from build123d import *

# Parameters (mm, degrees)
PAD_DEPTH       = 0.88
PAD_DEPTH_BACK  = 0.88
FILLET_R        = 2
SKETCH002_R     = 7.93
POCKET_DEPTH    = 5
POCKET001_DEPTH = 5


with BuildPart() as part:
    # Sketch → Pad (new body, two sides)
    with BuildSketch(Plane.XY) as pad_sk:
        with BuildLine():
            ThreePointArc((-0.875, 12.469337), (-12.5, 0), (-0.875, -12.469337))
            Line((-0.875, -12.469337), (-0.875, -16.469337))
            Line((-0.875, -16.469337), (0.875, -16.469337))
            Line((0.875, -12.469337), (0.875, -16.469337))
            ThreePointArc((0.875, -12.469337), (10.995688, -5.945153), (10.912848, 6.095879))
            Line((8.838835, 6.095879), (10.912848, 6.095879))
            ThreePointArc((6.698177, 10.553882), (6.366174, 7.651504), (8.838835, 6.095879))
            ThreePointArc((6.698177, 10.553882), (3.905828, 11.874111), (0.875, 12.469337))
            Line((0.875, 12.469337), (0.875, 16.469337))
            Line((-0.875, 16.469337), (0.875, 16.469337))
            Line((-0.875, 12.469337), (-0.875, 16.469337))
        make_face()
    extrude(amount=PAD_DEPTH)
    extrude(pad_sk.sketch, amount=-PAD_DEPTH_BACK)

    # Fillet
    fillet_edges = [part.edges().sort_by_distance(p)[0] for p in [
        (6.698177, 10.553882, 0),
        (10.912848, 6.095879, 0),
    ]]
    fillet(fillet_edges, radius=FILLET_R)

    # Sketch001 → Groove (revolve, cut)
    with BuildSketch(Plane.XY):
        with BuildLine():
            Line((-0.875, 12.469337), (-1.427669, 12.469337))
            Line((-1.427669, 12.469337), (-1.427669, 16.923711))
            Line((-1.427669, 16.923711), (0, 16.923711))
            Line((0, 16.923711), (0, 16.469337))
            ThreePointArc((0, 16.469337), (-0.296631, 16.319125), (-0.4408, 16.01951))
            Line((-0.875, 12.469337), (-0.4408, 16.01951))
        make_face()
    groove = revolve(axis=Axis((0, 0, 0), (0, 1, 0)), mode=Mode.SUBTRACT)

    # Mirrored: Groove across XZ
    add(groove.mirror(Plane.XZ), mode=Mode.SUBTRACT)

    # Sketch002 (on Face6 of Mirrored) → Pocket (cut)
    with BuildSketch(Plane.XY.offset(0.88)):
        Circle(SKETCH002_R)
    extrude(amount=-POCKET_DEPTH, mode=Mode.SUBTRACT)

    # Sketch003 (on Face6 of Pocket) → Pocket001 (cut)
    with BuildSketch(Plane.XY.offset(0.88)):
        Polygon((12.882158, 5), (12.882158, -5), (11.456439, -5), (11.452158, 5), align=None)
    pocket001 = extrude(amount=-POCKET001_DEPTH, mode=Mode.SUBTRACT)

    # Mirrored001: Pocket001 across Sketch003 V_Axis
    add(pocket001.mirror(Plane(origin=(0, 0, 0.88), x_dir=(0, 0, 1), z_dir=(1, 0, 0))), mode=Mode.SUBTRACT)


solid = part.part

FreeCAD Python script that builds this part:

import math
import FreeCAD as App
import Part
import Sketcher
from FreeCAD import Vector
Q = App.Units.Quantity


def edges_at(feature, points):
    """Names of the edges that pass closest to the given points."""
    edges = feature.Shape.Edges
    near = lambda p: min(range(len(edges)), key=lambda i: edges[i].distToShape(Part.Vertex(*p))[0])
    return sorted({f"Edge{near(p) + 1}" for p in points})


def add_polygon(sketch, points):
    """Adds a closed chain of lines whose ends are joined by coincident constraints."""
    first, n = sketch.GeometryCount, len(points)
    for a, b in zip(points, points[1:] + points[:1]):
        sketch.addGeometry(Part.LineSegment(App.Vector(*a, 0), App.Vector(*b, 0)), False)
    for i in range(n):
        sketch.addConstraint(Sketcher.Constraint("Coincident", first + i, 2, first + (i + 1) % n, 1))

doc = App.newDocument("Part")
body = doc.addObject("PartDesign::Body", "Body")

# Sketch on XY plane
sketch1 = body.newObject("Sketcher::SketchObject", "Sketch")
sketch1.AttachmentSupport = (doc.getObject("XY_Plane"), [""])
sketch1.MapMode = "FlatFace"
sketch1.addGeometry([
    Part.ArcOfCircle(Part.Circle(Vector(0, 0, 0), Vector(0, 0, 1), 12.5), math.radians(94), math.radians(266)),  # 0
    Part.LineSegment(Vector(-0.9, -12.5, 0), Vector(-0.9, -16.5, 0)),  # 1
    Part.LineSegment(Vector(-0.9, -16.5, 0), Vector(0.9, -16.5, 0)),  # 2
    Part.LineSegment(Vector(0.9, -16.5, 0), Vector(0.9, -12.5, 0)),  # 3
    Part.ArcOfCircle(Part.Circle(Vector(0, 0, 0), Vector(0, 0, 1), 12.5), math.radians(-86), math.radians(29)),  # 4
    Part.LineSegment(Vector(10.9, 6.1, 0), Vector(8.8, 6.1, 0)),  # 5
    Part.ArcOfCircle(Part.Circle(Vector(8.8, 8.8, 0), Vector(0, 0, 1), 2.7), math.radians(141), math.radians(270)),  # 6
    Part.ArcOfCircle(Part.Circle(Vector(0, 0, 0), Vector(0, 0, 1), 12.5), math.radians(58), math.radians(86)),  # 7
    Part.LineSegment(Vector(0.9, 12.5, 0), Vector(0.9, 16.5, 0)),  # 8
    Part.LineSegment(Vector(0.9, 16.5, 0), Vector(-0.9, 16.5, 0)),  # 9
    Part.LineSegment(Vector(-0.9, 16.5, 0), Vector(-0.9, 12.5, 0)),  # 10
], False)
sketch1.addConstraint([
    Sketcher.Constraint("Coincident", 0, 2, 1, 1),
    Sketcher.Constraint("Coincident", 1, 2, 2, 1),
    Sketcher.Constraint("Coincident", 2, 2, 3, 1),
    Sketcher.Constraint("Coincident", 3, 2, 4, 1),
    Sketcher.Constraint("Coincident", 4, 2, 5, 1),
    Sketcher.Constraint("Tangent", 5, 2, 6, 2),
    Sketcher.Constraint("Coincident", 6, 1, 7, 1),
    Sketcher.Constraint("Coincident", 7, 2, 8, 1),
    Sketcher.Constraint("Coincident", 8, 2, 9, 1),
    Sketcher.Constraint("Coincident", 9, 2, 10, 1),
    Sketcher.Constraint("Coincident", 10, 2, 0, 1),
    Sketcher.Constraint("Vertical", 1),
    Sketcher.Constraint("Horizontal", 2),
    Sketcher.Constraint("Vertical", 3),
    Sketcher.Constraint("Horizontal", 5),
    Sketcher.Constraint("Vertical", 8),
    Sketcher.Constraint("Horizontal", 9),
    Sketcher.Constraint("Vertical", 10),
    Sketcher.Constraint("Coincident", 0, 3, -1, 1),
    Sketcher.Constraint("Coincident", 4, 3, -1, 1),
    Sketcher.Constraint("Equal", 0, 4),
    Sketcher.Constraint("Symmetric", 0, 2, 7, 2, -1, 1),
    Sketcher.Constraint("Symmetric", 2, 2, 9, 2, -1, 1),
    Sketcher.Constraint("Horizontal", 0, 2, 3, 2),
    Sketcher.Constraint("Radius", 0, Q("12.5 mm")),
    Sketcher.Constraint("DistanceY", 1, 2, 1, 1, Q("4 mm")),
    Sketcher.Constraint("DistanceX", 2, 1, 2, 2, Q("1.75 mm")),
    Sketcher.Constraint("Radius", 7, Q("12.499988 mm")),
    Sketcher.Constraint("Radius", 6, Q("2.742955 mm")),
    Sketcher.Constraint("DistanceX", 5, 2, 5, 1, Q("2.074013 mm")),
    Sketcher.Constraint("DistanceX", -1, 1, 4, 2, Q("10.912848 mm")),
    Sketcher.Constraint("DistanceY", -1, 1, 6, 1, Q("10.553882 mm")),
])
pad1 = body.newObject("PartDesign::Pad", "Pad")
pad1.Profile = sketch1
pad1.Type = "TwoLengths"
pad1.Length = 0.88
pad1.Length2 = 0.88
doc.recompute()

fillet = body.newObject("PartDesign::Fillet", "Fillet")
fillet.Base = (pad1, edges_at(pad1, [(6.698, 10.554, 0), (10.913, 6.096, 0)]))
fillet.Radius = 2

# Sketch on XY plane
sketch2 = body.newObject("Sketcher::SketchObject", "Sketch001")
sketch2.AttachmentSupport = (doc.getObject("XY_Plane"), [""])
sketch2.MapMode = "FlatFace"
sketch2.addGeometry([
    Part.LineSegment(Vector(-1.43, 12.47, 0), Vector(-0.88, 12.47, 0)),  # 0
    Part.LineSegment(Vector(-0.88, 12.47, 0), Vector(-0.44, 16.02, 0)),  # 1
    Part.ArcOfCircle(Part.Circle(Vector(0.07, 15.96, 0), Vector(0, 0, 1), 0.52), math.radians(98), math.radians(173)),  # 2
    Part.LineSegment(Vector(0, 16.47, 0), Vector(0, 16.92, 0)),  # 3
    Part.LineSegment(Vector(0, 16.92, 0), Vector(-1.43, 16.92, 0)),  # 4
    Part.LineSegment(Vector(-1.43, 16.92, 0), Vector(-1.43, 12.47, 0)),  # 5
], False)
sketch2.addConstraint([
    Sketcher.Constraint("Coincident", 0, 2, 1, 1),
    Sketcher.Constraint("Coincident", 1, 2, 2, 2),
    Sketcher.Constraint("Coincident", 2, 1, 3, 1),
    Sketcher.Constraint("Coincident", 3, 2, 4, 1),
    Sketcher.Constraint("Coincident", 4, 2, 5, 1),
    Sketcher.Constraint("Coincident", 5, 2, 0, 1),
    Sketcher.Constraint("Horizontal", 0),
    Sketcher.Constraint("Vertical", 3),
    Sketcher.Constraint("Horizontal", 4),
    Sketcher.Constraint("Vertical", 5),
    Sketcher.Constraint("PointOnObject", 2, 1, -2),
    Sketcher.Constraint("DistanceY", 0, 2, 2, 1, Q("4 mm")),
    Sketcher.Constraint("Radius", 2, Q("0.517909 mm")),
    Sketcher.Constraint("DistanceX", 0, 2, -1, 1, Q("0.875 mm")),
    Sketcher.Constraint("DistanceX", 0, 1, 0, 2, Q("0.552669 mm")),
    Sketcher.Constraint("DistanceX", 1, 2, -1, 1, Q("0.4408 mm")),
    Sketcher.Constraint("DistanceY", 0, 2, 2, 3, Q("3.487301 mm")),
    Sketcher.Constraint("DistanceY", 1, 2, 3, 2, Q("0.904201 mm")),
    Sketcher.Constraint("DistanceY", -1, 1, 2, 3, Q("15.956638 mm")),
])
groove = body.newObject("PartDesign::Groove", "Groove")
groove.Profile = sketch2
groove.ReferenceAxis = (sketch2, ["V_Axis"])
groove.Angle = 360
doc.recompute()

mirrored = body.newObject("PartDesign::Mirrored", "Mirrored")
mirrored.Originals = [groove]
mirrored.MirrorPlane = (doc.getObject("XZ_Plane"), [""])
body.Tip = mirrored

# Sketch on XY plane
sketch3 = body.newObject("Sketcher::SketchObject", "Sketch002")
sketch3.AttachmentSupport = (doc.getObject("XY_Plane"), [""])
sketch3.MapMode = "FlatFace"
sketch3.AttachmentOffset = App.Placement(Vector(0, 0, 0.88), App.Rotation())
sketch3.addGeometry(Part.Circle(Vector(0, 0, 0), Vector(0, 0, 1), 8), False)
sketch3.addConstraint([
    Sketcher.Constraint("Coincident", 0, 3, -1, 1),
    Sketcher.Constraint("Diameter", 0, Q("15.86 mm")),
])
pocket1 = body.newObject("PartDesign::Pocket", "Pocket")
pocket1.Profile = sketch3
pocket1.Length = 5

# Sketch on XY plane
sketch4 = body.newObject("Sketcher::SketchObject", "Sketch003")
sketch4.AttachmentSupport = (doc.getObject("XY_Plane"), [""])
sketch4.MapMode = "FlatFace"
sketch4.AttachmentOffset = App.Placement(Vector(0, 0, 0.88), App.Rotation())
add_polygon(sketch4, [(12.9, -5), (12.9, 5), (11.5, 5), (11.5, -5)])  # lines 0-3
sketch4.addConstraint([
    Sketcher.Constraint("Vertical", 0),
    Sketcher.Constraint("Horizontal", 1),
    Sketcher.Constraint("Horizontal", 3),
    Sketcher.Constraint("DistanceY", 0, 1, 0, 2, Q("10 mm")),
    Sketcher.Constraint("DistanceY", -1, 1, 0, 2, Q("5 mm")),
    Sketcher.Constraint("DistanceX", 1, 2, 1, 1, Q("1.43 mm")),
    Sketcher.Constraint("DistanceX", 3, 1, 3, 2, Q("1.425719 mm")),
    Sketcher.Constraint("DistanceX", -1, 1, 1, 2, Q("11.452158 mm")),
])
pocket2 = body.newObject("PartDesign::Pocket", "Pocket001")
pocket2.Profile = sketch4
pocket2.Length = 5
doc.recompute()

mirrored2 = body.newObject("PartDesign::Mirrored", "Mirrored001")
mirrored2.Originals = [pocket2]
mirrored2.MirrorPlane = (doc.getObject("YZ_Plane"), [""])
body.Tip = mirrored2

doc.recompute()
